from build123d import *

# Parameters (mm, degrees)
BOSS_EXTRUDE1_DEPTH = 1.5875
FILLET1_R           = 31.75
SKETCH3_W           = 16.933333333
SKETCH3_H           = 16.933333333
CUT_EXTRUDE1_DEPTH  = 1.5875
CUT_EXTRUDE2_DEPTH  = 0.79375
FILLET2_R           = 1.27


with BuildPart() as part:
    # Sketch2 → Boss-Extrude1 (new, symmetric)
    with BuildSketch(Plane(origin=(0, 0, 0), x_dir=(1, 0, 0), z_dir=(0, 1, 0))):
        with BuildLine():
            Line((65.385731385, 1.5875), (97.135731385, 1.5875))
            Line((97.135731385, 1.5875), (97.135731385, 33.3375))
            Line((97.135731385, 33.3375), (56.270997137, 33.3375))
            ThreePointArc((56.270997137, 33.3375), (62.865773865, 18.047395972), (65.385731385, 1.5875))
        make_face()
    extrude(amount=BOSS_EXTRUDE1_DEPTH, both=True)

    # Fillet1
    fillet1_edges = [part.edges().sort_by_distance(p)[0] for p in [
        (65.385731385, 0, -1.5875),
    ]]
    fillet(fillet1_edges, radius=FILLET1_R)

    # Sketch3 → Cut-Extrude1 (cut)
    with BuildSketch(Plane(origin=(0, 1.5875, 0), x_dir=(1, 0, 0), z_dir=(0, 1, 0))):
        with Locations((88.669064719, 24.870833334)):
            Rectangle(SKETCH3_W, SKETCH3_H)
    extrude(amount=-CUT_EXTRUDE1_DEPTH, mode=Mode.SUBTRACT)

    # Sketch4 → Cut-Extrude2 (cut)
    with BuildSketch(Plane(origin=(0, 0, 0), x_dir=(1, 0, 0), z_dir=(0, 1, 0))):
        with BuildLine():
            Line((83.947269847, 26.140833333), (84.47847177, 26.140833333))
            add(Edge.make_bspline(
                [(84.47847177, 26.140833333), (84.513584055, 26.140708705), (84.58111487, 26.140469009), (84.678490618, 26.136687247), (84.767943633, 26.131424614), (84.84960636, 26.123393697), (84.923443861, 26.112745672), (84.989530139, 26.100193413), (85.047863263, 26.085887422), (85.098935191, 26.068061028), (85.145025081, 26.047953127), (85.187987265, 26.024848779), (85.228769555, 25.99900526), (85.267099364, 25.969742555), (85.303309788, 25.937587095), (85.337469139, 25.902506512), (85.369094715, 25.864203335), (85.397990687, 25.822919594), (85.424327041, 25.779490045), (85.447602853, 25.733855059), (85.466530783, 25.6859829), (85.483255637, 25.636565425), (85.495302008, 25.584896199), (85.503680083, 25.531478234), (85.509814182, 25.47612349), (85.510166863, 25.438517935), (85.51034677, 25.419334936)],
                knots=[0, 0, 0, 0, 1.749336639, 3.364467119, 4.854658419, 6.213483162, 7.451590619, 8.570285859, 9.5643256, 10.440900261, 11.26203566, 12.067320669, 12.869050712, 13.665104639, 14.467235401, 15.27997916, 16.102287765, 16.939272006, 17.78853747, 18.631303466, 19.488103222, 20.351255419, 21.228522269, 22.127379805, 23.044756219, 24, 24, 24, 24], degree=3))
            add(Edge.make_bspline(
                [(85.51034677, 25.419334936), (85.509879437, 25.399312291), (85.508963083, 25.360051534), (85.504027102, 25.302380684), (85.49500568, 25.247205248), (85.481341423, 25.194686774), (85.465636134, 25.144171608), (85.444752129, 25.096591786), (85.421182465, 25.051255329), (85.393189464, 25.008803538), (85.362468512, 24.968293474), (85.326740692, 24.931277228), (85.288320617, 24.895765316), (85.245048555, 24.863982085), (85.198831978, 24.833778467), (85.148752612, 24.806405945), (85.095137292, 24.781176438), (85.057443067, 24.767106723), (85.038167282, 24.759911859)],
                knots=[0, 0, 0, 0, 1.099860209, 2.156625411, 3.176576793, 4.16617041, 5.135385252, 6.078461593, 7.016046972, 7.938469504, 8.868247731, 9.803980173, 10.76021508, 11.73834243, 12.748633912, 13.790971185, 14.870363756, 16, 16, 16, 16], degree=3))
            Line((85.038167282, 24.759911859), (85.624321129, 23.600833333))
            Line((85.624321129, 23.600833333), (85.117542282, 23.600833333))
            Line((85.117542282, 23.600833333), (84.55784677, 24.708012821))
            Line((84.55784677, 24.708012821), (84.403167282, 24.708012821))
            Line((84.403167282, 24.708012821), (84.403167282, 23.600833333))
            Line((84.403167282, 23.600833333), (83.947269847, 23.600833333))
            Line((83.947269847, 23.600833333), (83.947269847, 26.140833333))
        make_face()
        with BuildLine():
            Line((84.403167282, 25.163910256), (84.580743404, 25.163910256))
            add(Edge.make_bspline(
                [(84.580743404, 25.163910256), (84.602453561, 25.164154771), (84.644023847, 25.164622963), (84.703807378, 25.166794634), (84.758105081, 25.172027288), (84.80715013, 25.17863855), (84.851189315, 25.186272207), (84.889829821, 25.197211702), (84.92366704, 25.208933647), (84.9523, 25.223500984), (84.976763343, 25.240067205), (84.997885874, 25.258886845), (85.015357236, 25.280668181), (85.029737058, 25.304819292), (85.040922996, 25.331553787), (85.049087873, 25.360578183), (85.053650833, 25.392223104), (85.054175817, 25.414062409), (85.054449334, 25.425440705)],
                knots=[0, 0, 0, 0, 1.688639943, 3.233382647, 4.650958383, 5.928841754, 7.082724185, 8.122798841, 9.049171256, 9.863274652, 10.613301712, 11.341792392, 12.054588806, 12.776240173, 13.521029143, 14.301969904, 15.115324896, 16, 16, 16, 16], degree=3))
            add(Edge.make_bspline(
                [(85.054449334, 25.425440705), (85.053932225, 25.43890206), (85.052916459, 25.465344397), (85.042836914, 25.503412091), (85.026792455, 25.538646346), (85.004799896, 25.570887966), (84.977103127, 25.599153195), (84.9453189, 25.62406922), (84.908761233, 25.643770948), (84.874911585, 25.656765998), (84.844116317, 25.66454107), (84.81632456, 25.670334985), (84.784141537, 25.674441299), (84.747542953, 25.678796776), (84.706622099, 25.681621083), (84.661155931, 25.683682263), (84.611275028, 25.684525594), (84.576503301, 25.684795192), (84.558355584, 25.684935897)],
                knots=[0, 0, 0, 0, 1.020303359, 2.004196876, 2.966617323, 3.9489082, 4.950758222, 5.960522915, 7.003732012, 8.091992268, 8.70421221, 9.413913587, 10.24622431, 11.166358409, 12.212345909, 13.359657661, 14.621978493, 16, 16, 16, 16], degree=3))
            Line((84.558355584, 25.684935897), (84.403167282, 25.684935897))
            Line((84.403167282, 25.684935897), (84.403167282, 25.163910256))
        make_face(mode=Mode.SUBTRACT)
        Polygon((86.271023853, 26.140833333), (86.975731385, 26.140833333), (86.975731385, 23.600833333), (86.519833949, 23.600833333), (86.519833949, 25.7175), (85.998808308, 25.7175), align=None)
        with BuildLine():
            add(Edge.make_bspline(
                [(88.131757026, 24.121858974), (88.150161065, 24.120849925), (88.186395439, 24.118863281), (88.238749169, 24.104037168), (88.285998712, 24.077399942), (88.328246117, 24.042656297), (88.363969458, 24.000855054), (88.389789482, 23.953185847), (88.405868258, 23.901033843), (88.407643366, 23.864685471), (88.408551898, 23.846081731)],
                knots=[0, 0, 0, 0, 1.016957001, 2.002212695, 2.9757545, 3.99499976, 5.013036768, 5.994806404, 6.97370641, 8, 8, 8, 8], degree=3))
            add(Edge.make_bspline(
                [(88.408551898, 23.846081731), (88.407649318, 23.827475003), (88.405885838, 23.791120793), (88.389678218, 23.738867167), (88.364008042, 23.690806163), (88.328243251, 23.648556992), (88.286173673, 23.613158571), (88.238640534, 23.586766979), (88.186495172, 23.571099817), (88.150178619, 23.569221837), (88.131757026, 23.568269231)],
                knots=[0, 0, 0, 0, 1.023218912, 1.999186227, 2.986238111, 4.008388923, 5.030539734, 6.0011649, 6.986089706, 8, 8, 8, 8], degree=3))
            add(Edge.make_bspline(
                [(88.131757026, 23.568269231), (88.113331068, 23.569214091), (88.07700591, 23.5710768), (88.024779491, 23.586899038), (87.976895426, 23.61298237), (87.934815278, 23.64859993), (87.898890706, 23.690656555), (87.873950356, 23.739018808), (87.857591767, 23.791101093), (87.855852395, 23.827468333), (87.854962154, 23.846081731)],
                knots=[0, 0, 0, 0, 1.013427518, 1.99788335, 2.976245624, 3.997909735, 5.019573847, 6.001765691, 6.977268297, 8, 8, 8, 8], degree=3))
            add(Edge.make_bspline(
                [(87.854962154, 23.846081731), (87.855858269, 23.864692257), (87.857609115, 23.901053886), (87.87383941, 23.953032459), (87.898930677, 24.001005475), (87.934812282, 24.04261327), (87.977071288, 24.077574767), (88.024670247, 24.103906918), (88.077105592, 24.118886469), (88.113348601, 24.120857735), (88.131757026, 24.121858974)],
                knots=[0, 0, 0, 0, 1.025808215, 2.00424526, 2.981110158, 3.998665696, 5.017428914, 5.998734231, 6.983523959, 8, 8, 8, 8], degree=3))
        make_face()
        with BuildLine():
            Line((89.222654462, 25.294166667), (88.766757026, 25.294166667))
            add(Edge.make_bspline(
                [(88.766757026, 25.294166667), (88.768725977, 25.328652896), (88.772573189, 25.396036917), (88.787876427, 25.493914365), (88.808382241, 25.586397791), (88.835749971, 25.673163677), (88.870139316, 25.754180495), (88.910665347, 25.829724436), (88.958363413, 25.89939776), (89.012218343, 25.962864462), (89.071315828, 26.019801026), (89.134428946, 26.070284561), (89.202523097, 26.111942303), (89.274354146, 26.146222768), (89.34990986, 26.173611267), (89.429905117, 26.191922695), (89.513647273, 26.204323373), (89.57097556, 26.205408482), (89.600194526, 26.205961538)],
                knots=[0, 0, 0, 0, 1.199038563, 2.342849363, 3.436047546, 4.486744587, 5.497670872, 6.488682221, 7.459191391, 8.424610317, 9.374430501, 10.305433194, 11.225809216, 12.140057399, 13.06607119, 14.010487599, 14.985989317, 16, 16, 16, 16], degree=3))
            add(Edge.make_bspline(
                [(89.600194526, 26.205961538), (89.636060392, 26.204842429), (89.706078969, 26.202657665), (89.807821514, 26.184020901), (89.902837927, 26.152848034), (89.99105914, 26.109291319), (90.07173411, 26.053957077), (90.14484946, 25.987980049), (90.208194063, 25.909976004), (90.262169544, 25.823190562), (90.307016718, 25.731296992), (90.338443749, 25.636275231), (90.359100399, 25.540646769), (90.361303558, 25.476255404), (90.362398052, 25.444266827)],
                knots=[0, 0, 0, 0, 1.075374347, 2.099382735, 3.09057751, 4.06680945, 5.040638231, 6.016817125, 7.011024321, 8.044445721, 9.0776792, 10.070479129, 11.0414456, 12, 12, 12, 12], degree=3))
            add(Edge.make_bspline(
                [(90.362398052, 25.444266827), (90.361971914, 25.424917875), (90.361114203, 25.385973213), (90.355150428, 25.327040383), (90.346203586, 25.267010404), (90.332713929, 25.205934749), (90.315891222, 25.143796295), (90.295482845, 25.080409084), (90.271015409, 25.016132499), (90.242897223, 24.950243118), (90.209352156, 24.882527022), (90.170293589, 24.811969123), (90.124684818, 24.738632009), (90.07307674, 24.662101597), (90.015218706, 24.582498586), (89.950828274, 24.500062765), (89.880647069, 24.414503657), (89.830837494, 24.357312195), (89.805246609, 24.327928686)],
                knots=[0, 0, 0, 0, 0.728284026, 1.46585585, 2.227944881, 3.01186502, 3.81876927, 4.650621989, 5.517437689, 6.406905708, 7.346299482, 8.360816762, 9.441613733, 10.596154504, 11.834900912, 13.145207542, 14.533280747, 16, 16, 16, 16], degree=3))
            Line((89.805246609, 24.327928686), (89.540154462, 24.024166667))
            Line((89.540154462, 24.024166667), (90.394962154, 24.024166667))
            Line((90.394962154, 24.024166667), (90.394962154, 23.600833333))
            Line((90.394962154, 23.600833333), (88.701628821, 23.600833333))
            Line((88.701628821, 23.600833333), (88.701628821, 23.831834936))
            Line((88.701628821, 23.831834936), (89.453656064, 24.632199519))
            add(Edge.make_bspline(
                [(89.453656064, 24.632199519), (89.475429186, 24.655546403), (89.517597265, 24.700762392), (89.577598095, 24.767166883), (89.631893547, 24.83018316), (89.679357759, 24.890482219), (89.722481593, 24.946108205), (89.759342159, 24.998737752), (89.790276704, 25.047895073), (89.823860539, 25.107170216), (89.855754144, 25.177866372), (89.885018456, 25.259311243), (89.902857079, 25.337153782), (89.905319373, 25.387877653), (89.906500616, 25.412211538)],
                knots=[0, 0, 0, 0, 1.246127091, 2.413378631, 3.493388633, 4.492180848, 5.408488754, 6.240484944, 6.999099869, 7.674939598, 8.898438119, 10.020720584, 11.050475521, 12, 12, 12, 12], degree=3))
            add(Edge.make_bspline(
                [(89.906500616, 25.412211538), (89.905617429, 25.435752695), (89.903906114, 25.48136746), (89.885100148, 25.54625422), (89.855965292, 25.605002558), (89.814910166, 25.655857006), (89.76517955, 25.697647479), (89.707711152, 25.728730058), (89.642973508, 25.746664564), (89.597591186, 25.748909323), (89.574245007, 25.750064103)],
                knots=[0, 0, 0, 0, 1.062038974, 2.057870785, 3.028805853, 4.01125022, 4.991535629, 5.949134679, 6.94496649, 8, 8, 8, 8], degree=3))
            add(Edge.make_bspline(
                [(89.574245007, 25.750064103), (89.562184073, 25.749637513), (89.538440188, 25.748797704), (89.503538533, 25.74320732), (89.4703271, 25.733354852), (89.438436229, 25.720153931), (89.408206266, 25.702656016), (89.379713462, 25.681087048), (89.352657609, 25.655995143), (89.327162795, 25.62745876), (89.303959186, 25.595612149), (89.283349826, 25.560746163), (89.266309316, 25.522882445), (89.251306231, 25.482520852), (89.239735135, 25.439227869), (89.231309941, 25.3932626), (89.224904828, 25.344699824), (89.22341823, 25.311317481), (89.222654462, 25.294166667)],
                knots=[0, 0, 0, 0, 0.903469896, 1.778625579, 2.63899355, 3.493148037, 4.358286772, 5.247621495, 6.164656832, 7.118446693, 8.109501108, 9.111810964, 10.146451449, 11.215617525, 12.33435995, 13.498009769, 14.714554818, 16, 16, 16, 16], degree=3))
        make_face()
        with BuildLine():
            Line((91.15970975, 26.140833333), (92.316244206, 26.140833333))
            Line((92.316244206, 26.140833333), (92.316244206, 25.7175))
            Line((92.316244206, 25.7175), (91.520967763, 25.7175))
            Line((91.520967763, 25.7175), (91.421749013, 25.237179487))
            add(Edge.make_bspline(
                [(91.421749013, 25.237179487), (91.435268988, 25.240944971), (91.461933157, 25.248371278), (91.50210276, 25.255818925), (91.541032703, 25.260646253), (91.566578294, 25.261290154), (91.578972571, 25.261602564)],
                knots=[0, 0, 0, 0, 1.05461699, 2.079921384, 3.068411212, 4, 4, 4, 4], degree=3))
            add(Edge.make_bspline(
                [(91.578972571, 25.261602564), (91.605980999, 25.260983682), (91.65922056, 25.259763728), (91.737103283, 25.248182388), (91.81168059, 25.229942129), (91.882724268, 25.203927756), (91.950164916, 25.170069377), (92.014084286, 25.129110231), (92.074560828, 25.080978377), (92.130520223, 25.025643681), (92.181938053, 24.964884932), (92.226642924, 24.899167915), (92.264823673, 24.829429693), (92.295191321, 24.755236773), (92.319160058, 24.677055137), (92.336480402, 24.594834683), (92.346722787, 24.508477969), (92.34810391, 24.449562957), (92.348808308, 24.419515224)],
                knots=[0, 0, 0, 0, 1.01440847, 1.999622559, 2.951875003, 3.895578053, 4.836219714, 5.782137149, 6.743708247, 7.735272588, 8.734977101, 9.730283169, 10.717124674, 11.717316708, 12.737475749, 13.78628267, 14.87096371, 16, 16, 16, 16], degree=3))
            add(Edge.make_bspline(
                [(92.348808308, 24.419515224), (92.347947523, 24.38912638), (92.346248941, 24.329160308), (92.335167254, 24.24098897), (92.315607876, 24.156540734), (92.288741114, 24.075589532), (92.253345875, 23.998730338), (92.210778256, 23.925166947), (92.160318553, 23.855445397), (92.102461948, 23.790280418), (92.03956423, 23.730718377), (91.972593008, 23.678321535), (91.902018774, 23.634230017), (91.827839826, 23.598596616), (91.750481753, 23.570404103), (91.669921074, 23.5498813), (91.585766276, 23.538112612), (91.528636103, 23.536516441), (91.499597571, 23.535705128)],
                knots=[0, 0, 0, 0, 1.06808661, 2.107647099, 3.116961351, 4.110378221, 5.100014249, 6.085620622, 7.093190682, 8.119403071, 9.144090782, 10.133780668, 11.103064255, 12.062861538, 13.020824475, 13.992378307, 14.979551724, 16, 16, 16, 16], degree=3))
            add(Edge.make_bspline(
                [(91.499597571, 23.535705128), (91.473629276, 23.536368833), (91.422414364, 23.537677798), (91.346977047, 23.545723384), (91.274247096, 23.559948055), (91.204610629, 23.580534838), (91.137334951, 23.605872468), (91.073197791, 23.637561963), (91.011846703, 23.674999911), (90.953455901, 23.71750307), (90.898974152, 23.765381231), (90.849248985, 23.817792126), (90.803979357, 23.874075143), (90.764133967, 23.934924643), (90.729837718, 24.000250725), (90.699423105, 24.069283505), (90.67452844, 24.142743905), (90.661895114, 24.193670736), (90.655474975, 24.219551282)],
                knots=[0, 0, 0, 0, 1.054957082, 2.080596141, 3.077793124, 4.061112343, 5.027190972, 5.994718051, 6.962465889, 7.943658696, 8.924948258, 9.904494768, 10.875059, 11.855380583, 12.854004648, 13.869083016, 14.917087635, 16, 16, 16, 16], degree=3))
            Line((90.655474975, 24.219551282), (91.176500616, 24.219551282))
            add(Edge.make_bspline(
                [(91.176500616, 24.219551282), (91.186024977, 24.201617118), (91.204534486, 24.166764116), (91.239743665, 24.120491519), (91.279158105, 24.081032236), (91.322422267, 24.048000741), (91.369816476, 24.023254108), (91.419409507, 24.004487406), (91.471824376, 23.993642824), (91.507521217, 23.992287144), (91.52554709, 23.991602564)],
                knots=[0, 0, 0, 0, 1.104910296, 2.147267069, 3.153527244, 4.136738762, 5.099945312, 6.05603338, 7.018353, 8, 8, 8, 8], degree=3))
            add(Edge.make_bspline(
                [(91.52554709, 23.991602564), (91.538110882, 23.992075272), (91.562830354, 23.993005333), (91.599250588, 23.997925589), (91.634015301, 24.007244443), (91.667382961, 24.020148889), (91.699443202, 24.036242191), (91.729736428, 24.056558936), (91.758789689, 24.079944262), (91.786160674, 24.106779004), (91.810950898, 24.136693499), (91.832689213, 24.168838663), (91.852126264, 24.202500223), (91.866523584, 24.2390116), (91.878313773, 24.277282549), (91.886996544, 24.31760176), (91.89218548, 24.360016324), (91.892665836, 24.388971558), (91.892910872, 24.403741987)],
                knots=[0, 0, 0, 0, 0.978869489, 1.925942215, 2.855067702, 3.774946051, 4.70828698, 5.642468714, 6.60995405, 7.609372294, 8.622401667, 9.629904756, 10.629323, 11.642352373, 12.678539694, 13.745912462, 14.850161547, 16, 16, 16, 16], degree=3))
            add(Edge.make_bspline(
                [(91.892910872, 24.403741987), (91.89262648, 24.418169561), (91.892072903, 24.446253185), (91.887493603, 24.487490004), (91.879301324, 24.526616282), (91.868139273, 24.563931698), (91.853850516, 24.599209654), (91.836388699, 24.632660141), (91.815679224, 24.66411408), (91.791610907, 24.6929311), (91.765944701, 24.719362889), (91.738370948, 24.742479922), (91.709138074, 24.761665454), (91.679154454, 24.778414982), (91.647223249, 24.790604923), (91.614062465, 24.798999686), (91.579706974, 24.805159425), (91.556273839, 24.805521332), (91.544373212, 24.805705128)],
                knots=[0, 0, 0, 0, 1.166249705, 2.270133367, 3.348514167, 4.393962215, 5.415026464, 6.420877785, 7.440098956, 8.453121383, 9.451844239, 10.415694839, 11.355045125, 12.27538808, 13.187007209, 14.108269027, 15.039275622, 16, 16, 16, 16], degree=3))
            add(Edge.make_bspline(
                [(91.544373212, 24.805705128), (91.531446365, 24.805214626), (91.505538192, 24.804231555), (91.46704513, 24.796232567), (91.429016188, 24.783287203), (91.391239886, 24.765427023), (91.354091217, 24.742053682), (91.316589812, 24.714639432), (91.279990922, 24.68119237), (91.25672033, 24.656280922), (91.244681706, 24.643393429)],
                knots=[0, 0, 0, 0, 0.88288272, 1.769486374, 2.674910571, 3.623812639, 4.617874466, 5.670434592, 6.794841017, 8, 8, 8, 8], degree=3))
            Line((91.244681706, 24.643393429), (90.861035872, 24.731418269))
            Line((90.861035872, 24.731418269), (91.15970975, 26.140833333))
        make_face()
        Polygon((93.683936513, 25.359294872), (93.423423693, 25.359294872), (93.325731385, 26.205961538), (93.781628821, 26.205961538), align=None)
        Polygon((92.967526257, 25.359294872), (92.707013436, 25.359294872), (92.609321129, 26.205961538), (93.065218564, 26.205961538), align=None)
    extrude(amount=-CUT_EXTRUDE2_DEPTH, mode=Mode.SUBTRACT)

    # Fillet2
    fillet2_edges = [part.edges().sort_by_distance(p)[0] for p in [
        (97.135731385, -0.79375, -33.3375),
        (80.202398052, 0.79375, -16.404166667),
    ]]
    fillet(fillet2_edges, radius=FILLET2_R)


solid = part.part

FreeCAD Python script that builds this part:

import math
import FreeCAD as App
import Part
import Sketcher
Q = App.Units.Quantity


def edges_at(feature, points):
    """Names of the edges that pass closest to the given points."""
    edges = feature.Shape.Edges
    near = lambda p: min(range(len(edges)), key=lambda i: edges[i].distToShape(Part.Vertex(*p))[0])
    return sorted({f"Edge{near(p) + 1}" for p in points})

doc = App.newDocument("Part")
body = doc.addObject("PartDesign::Body", "Body")

sketch1 = body.newObject("Sketcher::SketchObject", "Sketch")
sketch1.AttachmentSupport = (doc.getObject("XZ_Plane"), [""])
sketch1.MapMode = "FlatFace"
sketch1.addGeometry([
    Part.LineSegment(App.Vector(65, -2, 0), App.Vector(97, -2, 0)),
    Part.LineSegment(App.Vector(97, -2, 0), App.Vector(97, -33, 0)),
    Part.LineSegment(App.Vector(97, -33, 0), App.Vector(56, -33, 0)),
    Part.ArcOfCircle(Part.Circle(App.Vector(0, 0, 0), App.Vector(0, 0, 1), 65), math.radians(-31), math.radians(-1)),
], False)
sketch1.addConstraint([
    Sketcher.Constraint("Coincident", 0, 2, 1, 1),
    Sketcher.Constraint("Coincident", 1, 2, 2, 1),
    Sketcher.Constraint("Coincident", 2, 2, 3, 1),
    Sketcher.Constraint("Coincident", 3, 2, 0, 1),
    Sketcher.Constraint("Horizontal", 0),
    Sketcher.Constraint("Vertical", 1),
    Sketcher.Constraint("Horizontal", 2),
    Sketcher.Constraint("Coincident", 3, 3, -1, 1),
    Sketcher.Constraint("Equal", 0, 1),
    Sketcher.Constraint("Radius", 3, Q("2.575 in")),
    Sketcher.Constraint("DistanceX", 0, 1, 0, 2, Q("1.25 in")),
    Sketcher.Constraint("DistanceY", 0, 2, -1, 1, Q("0.0625 in")),
])
pad1 = body.newObject("PartDesign::Pad", "Pad")
pad1.Profile = sketch1
pad1.Length = Q("0.125 in")
pad1.Midplane = True
doc.recompute()

fillet = body.newObject("PartDesign::Fillet", "Fillet")
fillet.Base = (pad1, edges_at(pad1, [(65.386, 0, -1.587)]))
fillet.Radius = Q("1.25 in")

sketch2 = body.newObject("Sketcher::SketchObject", "Sketch001")
sketch2.AttachmentSupport = (doc.getObject("XZ_Plane"), [""])
sketch2.MapMode = "FlatFace"
sketch2.AttachmentOffset = App.Placement(App.Vector(0, 0, -0.0625 * 25.4), App.Rotation())
sketch2.addGeometry([
    Part.LineSegment(App.Vector(80, -33, 0), App.Vector(80, -16, 0)),
    Part.LineSegment(App.Vector(80, -16, 0), App.Vector(97, -16, 0)),
    Part.LineSegment(App.Vector(97, -16, 0), App.Vector(97, -33, 0)),
    Part.LineSegment(App.Vector(97, -33, 0), App.Vector(80, -33, 0)),
], False)
sketch2.addConstraint([
    Sketcher.Constraint("Coincident", 0, 2, 1, 1),
    Sketcher.Constraint("Coincident", 1, 2, 2, 1),
    Sketcher.Constraint("Coincident", 2, 2, 3, 1),
    Sketcher.Constraint("Coincident", 3, 2, 0, 1),
    Sketcher.Constraint("Vertical", 0),
    Sketcher.Constraint("Horizontal", 1),
    Sketcher.Constraint("Vertical", 2),
    Sketcher.Constraint("Horizontal", 3),
    Sketcher.Constraint("Equal", 3, 0),
    Sketcher.Constraint("DistanceY", 2, 2, -1, 1, Q("1.3125 in")),
    Sketcher.Constraint("DistanceX", -1, 1, 0, 2, 80.202398),
    Sketcher.Constraint("DistanceX", 1, 1, 1, 2, 16.933333),
])
pocket1 = body.newObject("PartDesign::Pocket", "Pocket")
pocket1.Profile = sketch2
pocket1.Length = Q("0.0625 in")
pocket1.Reversed = True

sketch3 = body.newObject("Sketcher::SketchObject", "Sketch002")
sketch3.AttachmentSupport = (doc.getObject("XZ_Plane"), [""])
sketch3.MapMode = "FlatFace"
sketch3.addGeometry([
    Part.LineSegment(App.Vector(84.478472, -26.140833, 0), App.Vector(83.94727, -26.140833, 0)),
    Part.LineSegment(App.Vector(83.94727, -26.140833, 0), App.Vector(83.94727, -23.600833, 0)),
    Part.LineSegment(App.Vector(83.94727, -23.600833, 0), App.Vector(84.403167, -23.600833, 0)),
    Part.LineSegment(App.Vector(84.403167, -23.600833, 0), App.Vector(84.403167, -24.708013, 0)),
    Part.LineSegment(App.Vector(84.403167, -24.708013, 0), App.Vector(84.557847, -24.708013, 0)),
    Part.LineSegment(App.Vector(84.557847, -24.708013, 0), App.Vector(85.117542, -23.600833, 0)),
    Part.LineSegment(App.Vector(85.117542, -23.600833, 0), App.Vector(85.624321, -23.600833, 0)),
    Part.LineSegment(App.Vector(85.624321, -23.600833, 0), App.Vector(85.038167, -24.759912, 0)),
    Part.BSplineCurve([App.Vector(85.510347, -25.419335, 0), App.Vector(85.509879, -25.399312, 0), App.Vector(85.508963, -25.360052, 0), App.Vector(85.504027, -25.302381, 0), App.Vector(85.495006, -25.247205, 0), App.Vector(85.481341, -25.194687, 0), App.Vector(85.465636, -25.144172, 0), App.Vector(85.444752, -25.096592, 0), App.Vector(85.421182, -25.051255, 0), App.Vector(85.393189, -25.008804, 0), App.Vector(85.362469, -24.968293, 0), App.Vector(85.326741, -24.931277, 0), App.Vector(85.288321, -24.895765, 0), App.Vector(85.245049, -24.863982, 0), App.Vector(85.198832, -24.833778, 0), App.Vector(85.148753, -24.806406, 0), App.Vector(85.095137, -24.781176, 0), App.Vector(85.057443, -24.767107, 0), App.Vector(85.038167, -24.759912, 0)], [4, 1, 1, 1, 1, 1, 1, 1, 1, 1, 1, 1, 1, 1, 1, 1, 4], [0, 1.099860209, 2.156625411, 3.176576793, 4.16617041, 5.135385252, 6.078461593, 7.016046972, 7.938469504, 8.868247731, 9.803980173, 10.76021508, 11.73834243, 12.748633912, 13.790971185, 14.870363756, 16], False, 3, [1, 1, 1, 1, 1, 1, 1, 1, 1, 1, 1, 1, 1, 1, 1, 1, 1, 1, 1], False),
    Part.BSplineCurve([App.Vector(84.478472, -26.140833, 0), App.Vector(84.513584, -26.140709, 0), App.Vector(84.581115, -26.140469, 0), App.Vector(84.678491, -26.136687, 0), App.Vector(84.767944, -26.131425, 0), App.Vector(84.849606, -26.123394, 0), App.Vector(84.923444, -26.112746, 0), App.Vector(84.98953, -26.100193, 0), App.Vector(85.047863, -26.085887, 0), App.Vector(85.098935, -26.068061, 0), App.Vector(85.145025, -26.047953, 0), App.Vector(85.187987, -26.024849, 0), App.Vector(85.22877, -25.999005, 0), App.Vector(85.267099, -25.969743, 0), App.Vector(85.30331, -25.937587, 0), App.Vector(85.337469, -25.902507, 0), App.Vector(85.369095, -25.864203, 0), App.Vector(85.397991, -25.82292, 0), App.Vector(85.424327, -25.77949, 0), App.Vector(85.447603, -25.733855, 0), App.Vector(85.466531, -25.685983, 0), App.Vector(85.483256, -25.636565, 0), App.Vector(85.495302, -25.584896, 0), App.Vector(85.50368, -25.531478, 0), App.Vector(85.509814, -25.476123, 0), App.Vector(85.510167, -25.438518, 0), App.Vector(85.510347, -25.419335, 0)], [4, 1, 1, 1, 1, 1, 1, 1, 1, 1, 1, 1, 1, 1, 1, 1, 1, 1, 1, 1, 1, 1, 1, 1, 4], [0, 1.749336639, 3.364467119, 4.854658419, 6.213483162, 7.451590619, 8.570285859, 9.5643256, 10.440900261, 11.26203566, 12.067320669, 12.869050712, 13.665104639, 14.467235401, 15.27997916, 16.102287765, 16.939272006, 17.78853747, 18.631303466, 19.488103222, 20.351255419, 21.228522269, 22.127379805, 23.044756219, 24], False, 3, [1, 1, 1, 1, 1, 1, 1, 1, 1, 1, 1, 1, 1, 1, 1, 1, 1, 1, 1, 1, 1, 1, 1, 1, 1, 1, 1], False),
    Part.LineSegment(App.Vector(84.403167, -25.16391, 0), App.Vector(84.403167, -25.684936, 0)),
    Part.LineSegment(App.Vector(84.403167, -25.684936, 0), App.Vector(84.558356, -25.684936, 0)),
    Part.BSplineCurve([App.Vector(85.054449, -25.425441, 0), App.Vector(85.053932, -25.438902, 0), App.Vector(85.052916, -25.465344, 0), App.Vector(85.042837, -25.503412, 0), App.Vector(85.026792, -25.538646, 0), App.Vector(85.0048, -25.570888, 0), App.Vector(84.977103, -25.599153, 0), App.Vector(84.945319, -25.624069, 0), App.Vector(84.908761, -25.643771, 0), App.Vector(84.874912, -25.656766, 0), App.Vector(84.844116, -25.664541, 0), App.Vector(84.816325, -25.670335, 0), App.Vector(84.784142, -25.674441, 0), App.Vector(84.747543, -25.678797, 0), App.Vector(84.706622, -25.681621, 0), App.Vector(84.661156, -25.683682, 0), App.Vector(84.611275, -25.684526, 0), App.Vector(84.576503, -25.684795, 0), App.Vector(84.558356, -25.684936, 0)], [4, 1, 1, 1, 1, 1, 1, 1, 1, 1, 1, 1, 1, 1, 1, 1, 4], [0, 1.020303359, 2.004196876, 2.966617323, 3.9489082, 4.950758222, 5.960522915, 7.003732012, 8.091992268, 8.70421221, 9.413913587, 10.24622431, 11.166358409, 12.212345909, 13.359657661, 14.621978493, 16], False, 3, [1, 1, 1, 1, 1, 1, 1, 1, 1, 1, 1, 1, 1, 1, 1, 1, 1, 1, 1], False),
    Part.BSplineCurve([App.Vector(84.580743, -25.16391, 0), App.Vector(84.602454, -25.164155, 0), App.Vector(84.644024, -25.164623, 0), App.Vector(84.703807, -25.166795, 0), App.Vector(84.758105, -25.172027, 0), App.Vector(84.80715, -25.178639, 0), App.Vector(84.851189, -25.186272, 0), App.Vector(84.88983, -25.197212, 0), App.Vector(84.923667, -25.208934, 0), App.Vector(84.9523, -25.223501, 0), App.Vector(84.976763, -25.240067, 0), App.Vector(84.997886, -25.258887, 0), App.Vector(85.015357, -25.280668, 0), App.Vector(85.029737, -25.304819, 0), App.Vector(85.040923, -25.331554, 0), App.Vector(85.049088, -25.360578, 0), App.Vector(85.053651, -25.392223, 0), App.Vector(85.054176, -25.414062, 0), App.Vector(85.054449, -25.425441, 0)], [4, 1, 1, 1, 1, 1, 1, 1, 1, 1, 1, 1, 1, 1, 1, 1, 4], [0, 1.688639943, 3.233382647, 4.650958383, 5.928841754, 7.082724185, 8.122798841, 9.049171256, 9.863274652, 10.613301712, 11.341792392, 12.054588806, 12.776240173, 13.521029143, 14.301969904, 15.115324896, 16], False, 3, [1, 1, 1, 1, 1, 1, 1, 1, 1, 1, 1, 1, 1, 1, 1, 1, 1, 1, 1], False),
    Part.LineSegment(App.Vector(84.580743, -25.16391, 0), App.Vector(84.403167, -25.16391, 0)),
    Part.LineSegment(App.Vector(86.975731, -26.140833, 0), App.Vector(86.271024, -26.140833, 0)),
    Part.LineSegment(App.Vector(86.271024, -26.140833, 0), App.Vector(85.998808, -25.7175, 0)),
    Part.LineSegment(App.Vector(85.998808, -25.7175, 0), App.Vector(86.519834, -25.7175, 0)),
    Part.LineSegment(App.Vector(86.519834, -25.7175, 0), App.Vector(86.519834, -23.600833, 0)),
    Part.LineSegment(App.Vector(86.519834, -23.600833, 0), App.Vector(86.975731, -23.600833, 0)),
    Part.LineSegment(App.Vector(86.975731, -23.600833, 0), App.Vector(86.975731, -26.140833, 0)),
    Part.BSplineCurve([App.Vector(88.131757, -24.121859, 0), App.Vector(88.150161, -24.12085, 0), App.Vector(88.186395, -24.118863, 0), App.Vector(88.238749, -24.104037, 0), App.Vector(88.285999, -24.0774, 0), App.Vector(88.328246, -24.042656, 0), App.Vector(88.363969, -24.000855, 0), App.Vector(88.389789, -23.953186, 0), App.Vector(88.405868, -23.901034, 0), App.Vector(88.407643, -23.864685, 0), App.Vector(88.408552, -23.846082, 0)], [4, 1, 1, 1, 1, 1, 1, 1, 4], [0, 1.016957001, 2.002212695, 2.9757545, 3.99499976, 5.013036768, 5.994806404, 6.97370641, 8], False, 3, [1, 1, 1, 1, 1, 1, 1, 1, 1, 1, 1], False),
    Part.BSplineCurve([App.Vector(87.854962, -23.846082, 0), App.Vector(87.855858, -23.864692, 0), App.Vector(87.857609, -23.901054, 0), App.Vector(87.873839, -23.953032, 0), App.Vector(87.898931, -24.001005, 0), App.Vector(87.934812, -24.042613, 0), App.Vector(87.977071, -24.077575, 0), App.Vector(88.02467, -24.103907, 0), App.Vector(88.077106, -24.118886, 0), App.Vector(88.113349, -24.120858, 0), App.Vector(88.131757, -24.121859, 0)], [4, 1, 1, 1, 1, 1, 1, 1, 4], [0, 1.025808215, 2.00424526, 2.981110158, 3.998665696, 5.017428914, 5.998734231, 6.983523959, 8], False, 3, [1, 1, 1, 1, 1, 1, 1, 1, 1, 1, 1], False),
    Part.BSplineCurve([App.Vector(88.131757, -23.568269, 0), App.Vector(88.113331, -23.569214, 0), App.Vector(88.077006, -23.571077, 0), App.Vector(88.024779, -23.586899, 0), App.Vector(87.976895, -23.612982, 0), App.Vector(87.934815, -23.6486, 0), App.Vector(87.898891, -23.690657, 0), App.Vector(87.87395, -23.739019, 0), App.Vector(87.857592, -23.791101, 0), App.Vector(87.855852, -23.827468, 0), App.Vector(87.854962, -23.846082, 0)], [4, 1, 1, 1, 1, 1, 1, 1, 4], [0, 1.013427518, 1.99788335, 2.976245624, 3.997909735, 5.019573847, 6.001765691, 6.977268297, 8], False, 3, [1, 1, 1, 1, 1, 1, 1, 1, 1, 1, 1], False),
    Part.BSplineCurve([App.Vector(88.408552, -23.846082, 0), App.Vector(88.407649, -23.827475, 0), App.Vector(88.405886, -23.791121, 0), App.Vector(88.389678, -23.738867, 0), App.Vector(88.364008, -23.690806, 0), App.Vector(88.328243, -23.648557, 0), App.Vector(88.286174, -23.613159, 0), App.Vector(88.238641, -23.586767, 0), App.Vector(88.186495, -23.5711, 0), App.Vector(88.150179, -23.569222, 0), App.Vector(88.131757, -23.568269, 0)], [4, 1, 1, 1, 1, 1, 1, 1, 4], [0, 1.023218912, 1.999186227, 2.986238111, 4.008388923, 5.030539734, 6.0011649, 6.986089706, 8], False, 3, [1, 1, 1, 1, 1, 1, 1, 1, 1, 1, 1], False),
    Part.LineSegment(App.Vector(88.766757, -25.294167, 0), App.Vector(89.222654, -25.294167, 0)),
    Part.BSplineCurve([App.Vector(89.574245, -25.750064, 0), App.Vector(89.562184, -25.749638, 0), App.Vector(89.53844, -25.748798, 0), App.Vector(89.503539, -25.743207, 0), App.Vector(89.470327, -25.733355, 0), App.Vector(89.438436, -25.720154, 0), App.Vector(89.408206, -25.702656, 0), App.Vector(89.379713, -25.681087, 0), App.Vector(89.352658, -25.655995, 0), App.Vector(89.327163, -25.627459, 0), App.Vector(89.303959, -25.595612, 0), App.Vector(89.28335, -25.560746, 0), App.Vector(89.266309, -25.522882, 0), App.Vector(89.251306, -25.482521, 0), App.Vector(89.239735, -25.439228, 0), App.Vector(89.23131, -25.393263, 0), App.Vector(89.224905, -25.3447, 0), App.Vector(89.223418, -25.311317, 0), App.Vector(89.222654, -25.294167, 0)], [4, 1, 1, 1, 1, 1, 1, 1, 1, 1, 1, 1, 1, 1, 1, 1, 4], [0, 0.903469896, 1.778625579, 2.63899355, 3.493148037, 4.358286772, 5.247621495, 6.164656832, 7.118446693, 8.109501108, 9.111810964, 10.146451449, 11.215617525, 12.33435995, 13.498009769, 14.714554818, 16], False, 3, [1, 1, 1, 1, 1, 1, 1, 1, 1, 1, 1, 1, 1, 1, 1, 1, 1, 1, 1], False),
    Part.BSplineCurve([App.Vector(89.906501, -25.412212, 0), App.Vector(89.905617, -25.435753, 0), App.Vector(89.903906, -25.481367, 0), App.Vector(89.8851, -25.546254, 0), App.Vector(89.855965, -25.605003, 0), App.Vector(89.81491, -25.655857, 0), App.Vector(89.76518, -25.697647, 0), App.Vector(89.707711, -25.72873, 0), App.Vector(89.642974, -25.746665, 0), App.Vector(89.597591, -25.748909, 0), App.Vector(89.574245, -25.750064, 0)], [4, 1, 1, 1, 1, 1, 1, 1, 4], [0, 1.062038974, 2.057870785, 3.028805853, 4.01125022, 4.991535629, 5.949134679, 6.94496649, 8], False, 3, [1, 1, 1, 1, 1, 1, 1, 1, 1, 1, 1], False),
    Part.BSplineCurve([App.Vector(89.453656, -24.6322, 0), App.Vector(89.475429, -24.655546, 0), App.Vector(89.517597, -24.700762, 0), App.Vector(89.577598, -24.767167, 0), App.Vector(89.631894, -24.830183, 0), App.Vector(89.679358, -24.890482, 0), App.Vector(89.722482, -24.946108, 0), App.Vector(89.759342, -24.998738, 0), App.Vector(89.790277, -25.047895, 0), App.Vector(89.823861, -25.10717, 0), App.Vector(89.855754, -25.177866, 0), App.Vector(89.885018, -25.259311, 0), App.Vector(89.902857, -25.337154, 0), App.Vector(89.905319, -25.387878, 0), App.Vector(89.906501, -25.412212, 0)], [4, 1, 1, 1, 1, 1, 1, 1, 1, 1, 1, 1, 4], [0, 1.246127091, 2.413378631, 3.493388633, 4.492180848, 5.408488754, 6.240484944, 6.999099869, 7.674939598, 8.898438119, 10.020720584, 11.050475521, 12], False, 3, [1, 1, 1, 1, 1, 1, 1, 1, 1, 1, 1, 1, 1, 1, 1], False),
    Part.LineSegment(App.Vector(89.453656, -24.6322, 0), App.Vector(88.701629, -23.831835, 0)),
    Part.LineSegment(App.Vector(88.701629, -23.831835, 0), App.Vector(88.701629, -23.600833, 0)),
    Part.LineSegment(App.Vector(88.701629, -23.600833, 0), App.Vector(90.394962, -23.600833, 0)),
    Part.LineSegment(App.Vector(90.394962, -23.600833, 0), App.Vector(90.394962, -24.024167, 0)),
    Part.LineSegment(App.Vector(90.394962, -24.024167, 0), App.Vector(89.540154, -24.024167, 0)),
    Part.LineSegment(App.Vector(89.540154, -24.024167, 0), App.Vector(89.805247, -24.327929, 0)),
    Part.BSplineCurve([App.Vector(90.362398, -25.444267, 0), App.Vector(90.361972, -25.424918, 0), App.Vector(90.361114, -25.385973, 0), App.Vector(90.35515, -25.32704, 0), App.Vector(90.346204, -25.26701, 0), App.Vector(90.332714, -25.205935, 0), App.Vector(90.315891, -25.143796, 0), App.Vector(90.295483, -25.080409, 0), App.Vector(90.271015, -25.016132, 0), App.Vector(90.242897, -24.950243, 0), App.Vector(90.209352, -24.882527, 0), App.Vector(90.170294, -24.811969, 0), App.Vector(90.124685, -24.738632, 0), App.Vector(90.073077, -24.662102, 0), App.Vector(90.015219, -24.582499, 0), App.Vector(89.950828, -24.500063, 0), App.Vector(89.880647, -24.414504, 0), App.Vector(89.830837, -24.357312, 0), App.Vector(89.805247, -24.327929, 0)], [4, 1, 1, 1, 1, 1, 1, 1, 1, 1, 1, 1, 1, 1, 1, 1, 4], [0, 0.728284026, 1.46585585, 2.227944881, 3.01186502, 3.81876927, 4.650621989, 5.517437689, 6.406905708, 7.346299482, 8.360816762, 9.441613733, 10.596154504, 11.834900912, 13.145207542, 14.533280747, 16], False, 3, [1, 1, 1, 1, 1, 1, 1, 1, 1, 1, 1, 1, 1, 1, 1, 1, 1, 1, 1], False),
    Part.BSplineCurve([App.Vector(89.600195, -26.205962, 0), App.Vector(89.63606, -26.204842, 0), App.Vector(89.706079, -26.202658, 0), App.Vector(89.807822, -26.184021, 0), App.Vector(89.902838, -26.152848, 0), App.Vector(89.991059, -26.109291, 0), App.Vector(90.071734, -26.053957, 0), App.Vector(90.144849, -25.98798, 0), App.Vector(90.208194, -25.909976, 0), App.Vector(90.26217, -25.823191, 0), App.Vector(90.307017, -25.731297, 0), App.Vector(90.338444, -25.636275, 0), App.Vector(90.3591, -25.540647, 0), App.Vector(90.361304, -25.476255, 0), App.Vector(90.362398, -25.444267, 0)], [4, 1, 1, 1, 1, 1, 1, 1, 1, 1, 1, 1, 4], [0, 1.075374347, 2.099382735, 3.09057751, 4.06680945, 5.040638231, 6.016817125, 7.011024321, 8.044445721, 9.0776792, 10.070479129, 11.0414456, 12], False, 3, [1, 1, 1, 1, 1, 1, 1, 1, 1, 1, 1, 1, 1, 1, 1], False),
    Part.BSplineCurve([App.Vector(88.766757, -25.294167, 0), App.Vector(88.768726, -25.328653, 0), App.Vector(88.772573, -25.396037, 0), App.Vector(88.787876, -25.493914, 0), App.Vector(88.808382, -25.586398, 0), App.Vector(88.83575, -25.673164, 0), App.Vector(88.870139, -25.75418, 0), App.Vector(88.910665, -25.829724, 0), App.Vector(88.958363, -25.899398, 0), App.Vector(89.012218, -25.962864, 0), App.Vector(89.071316, -26.019801, 0), App.Vector(89.134429, -26.070285, 0), App.Vector(89.202523, -26.111942, 0), App.Vector(89.274354, -26.146223, 0), App.Vector(89.34991, -26.173611, 0), App.Vector(89.429905, -26.191923, 0), App.Vector(89.513647, -26.204323, 0), App.Vector(89.570976, -26.205408, 0), App.Vector(89.600195, -26.205962, 0)], [4, 1, 1, 1, 1, 1, 1, 1, 1, 1, 1, 1, 1, 1, 1, 1, 4], [0, 1.199038563, 2.342849363, 3.436047546, 4.486744587, 5.497670872, 6.488682221, 7.459191391, 8.424610317, 9.374430501, 10.305433194, 11.225809216, 12.140057399, 13.06607119, 14.010487599, 14.985989317, 16], False, 3, [1, 1, 1, 1, 1, 1, 1, 1, 1, 1, 1, 1, 1, 1, 1, 1, 1, 1, 1], False),
    Part.LineSegment(App.Vector(92.316244, -26.140833, 0), App.Vector(91.15971, -26.140833, 0)),
    Part.LineSegment(App.Vector(91.15971, -26.140833, 0), App.Vector(90.861036, -24.731418, 0)),
    Part.LineSegment(App.Vector(90.861036, -24.731418, 0), App.Vector(91.244682, -24.643393, 0)),
    Part.BSplineCurve([App.Vector(91.544373, -24.805705, 0), App.Vector(91.531446, -24.805215, 0), App.Vector(91.505538, -24.804232, 0), App.Vector(91.467045, -24.796233, 0), App.Vector(91.429016, -24.783287, 0), App.Vector(91.39124, -24.765427, 0), App.Vector(91.354091, -24.742054, 0), App.Vector(91.31659, -24.714639, 0), App.Vector(91.279991, -24.681192, 0), App.Vector(91.25672, -24.656281, 0), App.Vector(91.244682, -24.643393, 0)], [4, 1, 1, 1, 1, 1, 1, 1, 4], [0, 0.88288272, 1.769486374, 2.674910571, 3.623812639, 4.617874466, 5.670434592, 6.794841017, 8], False, 3, [1, 1, 1, 1, 1, 1, 1, 1, 1, 1, 1], False),
    Part.BSplineCurve([App.Vector(91.892911, -24.403742, 0), App.Vector(91.892626, -24.41817, 0), App.Vector(91.892073, -24.446253, 0), App.Vector(91.887494, -24.48749, 0), App.Vector(91.879301, -24.526616, 0), App.Vector(91.868139, -24.563932, 0), App.Vector(91.853851, -24.59921, 0), App.Vector(91.836389, -24.63266, 0), App.Vector(91.815679, -24.664114, 0), App.Vector(91.791611, -24.692931, 0), App.Vector(91.765945, -24.719363, 0), App.Vector(91.738371, -24.74248, 0), App.Vector(91.709138, -24.761665, 0), App.Vector(91.679154, -24.778415, 0), App.Vector(91.647223, -24.790605, 0), App.Vector(91.614062, -24.799, 0), App.Vector(91.579707, -24.805159, 0), App.Vector(91.556274, -24.805521, 0), App.Vector(91.544373, -24.805705, 0)], [4, 1, 1, 1, 1, 1, 1, 1, 1, 1, 1, 1, 1, 1, 1, 1, 4], [0, 1.166249705, 2.270133367, 3.348514167, 4.393962215, 5.415026464, 6.420877785, 7.440098956, 8.453121383, 9.451844239, 10.415694839, 11.355045125, 12.27538808, 13.187007209, 14.108269027, 15.039275622, 16], False, 3, [1, 1, 1, 1, 1, 1, 1, 1, 1, 1, 1, 1, 1, 1, 1, 1, 1, 1, 1], False),
    Part.BSplineCurve([App.Vector(91.525547, -23.991603, 0), App.Vector(91.538111, -23.992075, 0), App.Vector(91.56283, -23.993005, 0), App.Vector(91.599251, -23.997926, 0), App.Vector(91.634015, -24.007244, 0), App.Vector(91.667383, -24.020149, 0), App.Vector(91.699443, -24.036242, 0), App.Vector(91.729736, -24.056559, 0), App.Vector(91.75879, -24.079944, 0), App.Vector(91.786161, -24.106779, 0), App.Vector(91.810951, -24.136693, 0), App.Vector(91.832689, -24.168839, 0), App.Vector(91.852126, -24.2025, 0), App.Vector(91.866524, -24.239012, 0), App.Vector(91.878314, -24.277283, 0), App.Vector(91.886997, -24.317602, 0), App.Vector(91.892185, -24.360016, 0), App.Vector(91.892666, -24.388972, 0), App.Vector(91.892911, -24.403742, 0)], [4, 1, 1, 1, 1, 1, 1, 1, 1, 1, 1, 1, 1, 1, 1, 1, 4], [0, 0.978869489, 1.925942215, 2.855067702, 3.774946051, 4.70828698, 5.642468714, 6.60995405, 7.609372294, 8.622401667, 9.629904756, 10.629323, 11.642352373, 12.678539694, 13.745912462, 14.850161547, 16], False, 3, [1, 1, 1, 1, 1, 1, 1, 1, 1, 1, 1, 1, 1, 1, 1, 1, 1, 1, 1], False),
    Part.BSplineCurve([App.Vector(91.176501, -24.219551, 0), App.Vector(91.186025, -24.201617, 0), App.Vector(91.204534, -24.166764, 0), App.Vector(91.239744, -24.120492, 0), App.Vector(91.279158, -24.081032, 0), App.Vector(91.322422, -24.048001, 0), App.Vector(91.369816, -24.023254, 0), App.Vector(91.41941, -24.004487, 0), App.Vector(91.471824, -23.993643, 0), App.Vector(91.507521, -23.992287, 0), App.Vector(91.525547, -23.991603, 0)], [4, 1, 1, 1, 1, 1, 1, 1, 4], [0, 1.104910296, 2.147267069, 3.153527244, 4.136738762, 5.099945312, 6.05603338, 7.018353, 8], False, 3, [1, 1, 1, 1, 1, 1, 1, 1, 1, 1, 1], False),
    Part.LineSegment(App.Vector(91.176501, -24.219551, 0), App.Vector(90.655475, -24.219551, 0)),
    Part.BSplineCurve([App.Vector(91.499598, -23.535705, 0), App.Vector(91.473629, -23.536369, 0), App.Vector(91.422414, -23.537678, 0), App.Vector(91.346977, -23.545723, 0), App.Vector(91.274247, -23.559948, 0), App.Vector(91.204611, -23.580535, 0), App.Vector(91.137335, -23.605872, 0), App.Vector(91.073198, -23.637562, 0), App.Vector(91.011847, -23.675, 0), App.Vector(90.953456, -23.717503, 0), App.Vector(90.898974, -23.765381, 0), App.Vector(90.849249, -23.817792, 0), App.Vector(90.803979, -23.874075, 0), App.Vector(90.764134, -23.934925, 0), App.Vector(90.729838, -24.000251, 0), App.Vector(90.699423, -24.069284, 0), App.Vector(90.674528, -24.142744, 0), App.Vector(90.661895, -24.193671, 0), App.Vector(90.655475, -24.219551, 0)], [4, 1, 1, 1, 1, 1, 1, 1, 1, 1, 1, 1, 1, 1, 1, 1, 4], [0, 1.054957082, 2.080596141, 3.077793124, 4.061112343, 5.027190972, 5.994718051, 6.962465889, 7.943658696, 8.924948258, 9.904494768, 10.875059, 11.855380583, 12.854004648, 13.869083016, 14.917087635, 16], False, 3, [1, 1, 1, 1, 1, 1, 1, 1, 1, 1, 1, 1, 1, 1, 1, 1, 1, 1, 1], False),
    Part.BSplineCurve([App.Vector(92.348808, -24.419515, 0), App.Vector(92.347948, -24.389126, 0), App.Vector(92.346249, -24.32916, 0), App.Vector(92.335167, -24.240989, 0), App.Vector(92.315608, -24.156541, 0), App.Vector(92.288741, -24.07559, 0), App.Vector(92.253346, -23.99873, 0), App.Vector(92.210778, -23.925167, 0), App.Vector(92.160319, -23.855445, 0), App.Vector(92.102462, -23.79028, 0), App.Vector(92.039564, -23.730718, 0), App.Vector(91.972593, -23.678322, 0), App.Vector(91.902019, -23.63423, 0), App.Vector(91.82784, -23.598597, 0), App.Vector(91.750482, -23.570404, 0), App.Vector(91.669921, -23.549881, 0), App.Vector(91.585766, -23.538113, 0), App.Vector(91.528636, -23.536516, 0), App.Vector(91.499598, -23.535705, 0)], [4, 1, 1, 1, 1, 1, 1, 1, 1, 1, 1, 1, 1, 1, 1, 1, 4], [0, 1.06808661, 2.107647099, 3.116961351, 4.110378221, 5.100014249, 6.085620622, 7.093190682, 8.119403071, 9.144090782, 10.133780668, 11.103064255, 12.062861538, 13.020824475, 13.992378307, 14.979551724, 16], False, 3, [1, 1, 1, 1, 1, 1, 1, 1, 1, 1, 1, 1, 1, 1, 1, 1, 1, 1, 1], False),
    Part.BSplineCurve([App.Vector(91.578973, -25.261603, 0), App.Vector(91.605981, -25.260984, 0), App.Vector(91.659221, -25.259764, 0), App.Vector(91.737103, -25.248182, 0), App.Vector(91.811681, -25.229942, 0), App.Vector(91.882724, -25.203928, 0), App.Vector(91.950165, -25.170069, 0), App.Vector(92.014084, -25.12911, 0), App.Vector(92.074561, -25.080978, 0), App.Vector(92.13052, -25.025644, 0), App.Vector(92.181938, -24.964885, 0), App.Vector(92.226643, -24.899168, 0), App.Vector(92.264824, -24.82943, 0), App.Vector(92.295191, -24.755237, 0), App.Vector(92.31916, -24.677055, 0), App.Vector(92.33648, -24.594835, 0), App.Vector(92.346723, -24.508478, 0), App.Vector(92.348104, -24.449563, 0), App.Vector(92.348808, -24.419515, 0)], [4, 1, 1, 1, 1, 1, 1, 1, 1, 1, 1, 1, 1, 1, 1, 1, 4], [0, 1.01440847, 1.999622559, 2.951875003, 3.895578053, 4.836219714, 5.782137149, 6.743708247, 7.735272588, 8.734977101, 9.730283169, 10.717124674, 11.717316708, 12.737475749, 13.78628267, 14.87096371, 16], False, 3, [1, 1, 1, 1, 1, 1, 1, 1, 1, 1, 1, 1, 1, 1, 1, 1, 1, 1, 1], False),
    Part.BSplineCurve([App.Vector(91.421749, -25.237179, 0), App.Vector(91.435269, -25.240945, 0), App.Vector(91.461933, -25.248371, 0), App.Vector(91.502103, -25.255819, 0), App.Vector(91.541033, -25.260646, 0), App.Vector(91.566578, -25.26129, 0), App.Vector(91.578973, -25.261603, 0)], [4, 1, 1, 1, 4], [0, 1.05461699, 2.079921384, 3.068411212, 4], False, 3, [1, 1, 1, 1, 1, 1, 1], False),
    Part.LineSegment(App.Vector(91.421749, -25.237179, 0), App.Vector(91.520968, -25.7175, 0)),
    Part.LineSegment(App.Vector(91.520968, -25.7175, 0), App.Vector(92.316244, -25.7175, 0)),
    Part.LineSegment(App.Vector(92.316244, -25.7175, 0), App.Vector(92.316244, -26.140833, 0)),
    Part.LineSegment(App.Vector(93.423424, -25.359295, 0), App.Vector(93.683937, -25.359295, 0)),
    Part.LineSegment(App.Vector(93.683937, -25.359295, 0), App.Vector(93.781629, -26.205962, 0)),
    Part.LineSegment(App.Vector(93.781629, -26.205962, 0), App.Vector(93.325731, -26.205962, 0)),
    Part.LineSegment(App.Vector(93.325731, -26.205962, 0), App.Vector(93.423424, -25.359295, 0)),
    Part.LineSegment(App.Vector(92.707013, -25.359295, 0), App.Vector(92.967526, -25.359295, 0)),
    Part.LineSegment(App.Vector(92.967526, -25.359295, 0), App.Vector(93.065219, -26.205962, 0)),
    Part.LineSegment(App.Vector(93.065219, -26.205962, 0), App.Vector(92.609321, -26.205962, 0)),
    Part.LineSegment(App.Vector(92.609321, -26.205962, 0), App.Vector(92.707013, -25.359295, 0)),
], False)
sketch3.addConstraint([
    Sketcher.Constraint("Block", 8),
    Sketcher.Constraint("Block", 9),
    Sketcher.Constraint("Block", 12),
    Sketcher.Constraint("Block", 13),
    Sketcher.Constraint("Block", 21),
    Sketcher.Constraint("Block", 22),
    Sketcher.Constraint("Block", 23),
    Sketcher.Constraint("Block", 24),
    Sketcher.Constraint("Block", 26),
    Sketcher.Constraint("Block", 27),
    Sketcher.Constraint("Block", 28),
    Sketcher.Constraint("Block", 35),
    Sketcher.Constraint("Block", 36),
    Sketcher.Constraint("Block", 37),
    Sketcher.Constraint("Block", 41),
    Sketcher.Constraint("Block", 42),
    Sketcher.Constraint("Block", 43),
    Sketcher.Constraint("Block", 44),
    Sketcher.Constraint("Block", 46),
    Sketcher.Constraint("Block", 47),
    Sketcher.Constraint("Block", 48),
    Sketcher.Constraint("Block", 49),
    Sketcher.Constraint("Coincident", 0, 2, 1, 1),
    Sketcher.Constraint("Coincident", 1, 2, 2, 1),
    Sketcher.Constraint("Coincident", 2, 2, 3, 1),
    Sketcher.Constraint("Coincident", 3, 2, 4, 1),
    Sketcher.Constraint("Coincident", 4, 2, 5, 1),
    Sketcher.Constraint("Coincident", 5, 2, 6, 1),
    Sketcher.Constraint("Coincident", 6, 2, 7, 1),
    Sketcher.Constraint("Coincident", 7, 2, 8, 2),
    Sketcher.Constraint("Coincident", 9, 1, 0, 1),
    Sketcher.Constraint("Coincident", 10, 2, 11, 1),
    Sketcher.Constraint("Coincident", 11, 2, 12, 2),
    Sketcher.Constraint("Coincident", 13, 1, 14, 1),
    Sketcher.Constraint("Coincident", 14, 2, 10, 1),
    Sketcher.Constraint("Coincident", 15, 2, 16, 1),
    Sketcher.Constraint("Coincident", 16, 2, 17, 1),
    Sketcher.Constraint("Coincident", 17, 2, 18, 1),
    Sketcher.Constraint("Coincident", 18, 2, 19, 1),
    Sketcher.Constraint("Coincident", 19, 2, 20, 1),
    Sketcher.Constraint("Coincident", 20, 2, 15, 1),
    Sketcher.Constraint("Coincident", 25, 2, 26, 2),
    Sketcher.Constraint("Coincident", 28, 1, 29, 1),
    Sketcher.Constraint("Coincident", 29, 2, 30, 1),
    Sketcher.Constraint("Coincident", 30, 2, 31, 1),
    Sketcher.Constraint("Coincident", 31, 2, 32, 1),
    Sketcher.Constraint("Coincident", 32, 2, 33, 1),
    Sketcher.Constraint("Coincident", 33, 2, 34, 1),
    Sketcher.Constraint("Coincident", 34, 2, 35, 2),
    Sketcher.Constraint("Coincident", 37, 1, 25, 1),
    Sketcher.Constraint("Coincident", 38, 2, 39, 1),
    Sketcher.Constraint("Coincident", 39, 2, 40, 1),
    Sketcher.Constraint("Coincident", 40, 2, 41, 2),
    Sketcher.Constraint("Coincident", 44, 1, 45, 1),
    Sketcher.Constraint("Coincident", 45, 2, 46, 2),
    Sketcher.Constraint("Coincident", 49, 1, 50, 1),
    Sketcher.Constraint("Coincident", 50, 2, 51, 1),
    Sketcher.Constraint("Coincident", 51, 2, 52, 1),
    Sketcher.Constraint("Coincident", 52, 2, 38, 1),
    Sketcher.Constraint("Coincident", 53, 2, 54, 1),
    Sketcher.Constraint("Coincident", 54, 2, 55, 1),
    Sketcher.Constraint("Coincident", 55, 2, 56, 1),
    Sketcher.Constraint("Coincident", 56, 2, 53, 1),
    Sketcher.Constraint("Coincident", 57, 2, 58, 1),
    Sketcher.Constraint("Coincident", 58, 2, 59, 1),
    Sketcher.Constraint("Coincident", 59, 2, 60, 1),
    Sketcher.Constraint("Coincident", 60, 2, 57, 1),
    Sketcher.Constraint("Horizontal", 0),
    Sketcher.Constraint("Vertical", 1),
    Sketcher.Constraint("Horizontal", 2),
    Sketcher.Constraint("Vertical", 3),
    Sketcher.Constraint("Horizontal", 4),
    Sketcher.Constraint("Horizontal", 6),
    Sketcher.Constraint("Vertical", 10),
    Sketcher.Constraint("Horizontal", 11),
    Sketcher.Constraint("Horizontal", 14),
    Sketcher.Constraint("Horizontal", 15),
    Sketcher.Constraint("Horizontal", 17),
    Sketcher.Constraint("Vertical", 18),
    Sketcher.Constraint("Horizontal", 19),
    Sketcher.Constraint("Vertical", 20),
    Sketcher.Constraint("Vertical", 30),
    Sketcher.Constraint("Horizontal", 31),
    Sketcher.Constraint("Vertical", 32),
    Sketcher.Constraint("Horizontal", 33),
    Sketcher.Constraint("Horizontal", 38),
    Sketcher.Constraint("Horizontal", 51),
    Sketcher.Constraint("Vertical", 52),
    Sketcher.Constraint("Horizontal", 53),
    Sketcher.Constraint("Horizontal", 55),
    Sketcher.Constraint("Horizontal", 57),
    Sketcher.Constraint("Horizontal", 59),
    Sketcher.Constraint("DistanceY", 1, 1, 1, 2, Q("0.1 in")),
    Sketcher.Constraint("DistanceY", 20, 2, 20, 1, Q("0.1 in")),
    Sketcher.Constraint("DistanceY", 0, 2, 5, 2, Q("0.1 in")),
    Sketcher.Constraint("DistanceY", 38, 2, 31, 2, Q("0.1 in")),
    Sketcher.Constraint("DistanceY", 25, 2, 32, 2, Q("0.05 in")),
    Sketcher.Constraint("DistanceX", 3, 2, 7, 2, Q("0.025 in")),
    Sketcher.Constraint("DistanceX", 10, 2, 7, 2, Q("0.025 in")),
    Sketcher.Constraint("DistanceX", 0, 2, 0, 1, 0.531202),
    Sketcher.Constraint("DistanceY", 30, 1, 30, 2, 0.231002),
    Sketcher.Constraint("DistanceY", 16, 2, -1, 1, Q("1.0125 in")),
    Sketcher.Constraint("DistanceY", 50, 2, -1, 1, Q("1.0125 in")),
    Sketcher.Constraint("DistanceX", 25, 2, 33, 2, Q("0.0125 in")),
    Sketcher.Constraint("Distance", 16, 0.503302),
    Sketcher.Constraint("DistanceX", 4, 1, 4, 2, 0.154679),
    Sketcher.Constraint("DistanceX", 6, 1, 6, 2, 0.506779),
    Sketcher.Constraint("DistanceY", 3, 2, 3, 1, 1.107179),
    Sketcher.Constraint("DistanceY", 29, 2, 19, 2, 0.231002),
    Sketcher.Constraint("DistanceY", 53, 2, 40, 2, 0.715901),
    Sketcher.Constraint("Distance", 7, 1.298861),
    Sketcher.Constraint("Distance", 29, 1.098239),
    Sketcher.Constraint("Distance", 50, 0.490461),
    Sketcher.Constraint("DistanceX", 15, 2, 15, 1, 0.704708),
    Sketcher.Constraint("DistanceX", 17, 1, 17, 2, 0.521026),
    Sketcher.Constraint("DistanceX", 19, 1, 19, 2, 0.455897),
    Sketcher.Constraint("DistanceX", 31, 1, 31, 2, 1.693333),
    Sketcher.Constraint("DistanceX", 38, 2, 38, 1, 1.156534),
    Sketcher.Constraint("DistanceX", 51, 1, 51, 2, 0.795276),
    Sketcher.Constraint("DistanceX", 53, 1, 53, 2, 0.260513),
    Sketcher.Constraint("DistanceX", 55, 2, 55, 1, 0.455897),
    Sketcher.Constraint("DistanceX", 57, 1, 57, 2, 0.260513),
    Sketcher.Constraint("DistanceX", 59, 2, 59, 1, 0.455897),
    Sketcher.Constraint("DistanceX", -1, 1, 16, 2, 85.998808),
    Sketcher.Constraint("DistanceY", 39, 2, -1, 1, 24.731418),
    Sketcher.Constraint("DistanceX", -1, 1, 54, 2, 93.781629),
    Sketcher.Constraint("DistanceY", 54, 2, -1, 1, 26.205962),
    Sketcher.Constraint("DistanceX", -1, 1, 58, 2, 93.065219),
    Sketcher.Constraint("DistanceY", 58, 2, -1, 1, 26.205962),
    Sketcher.Constraint("DistanceX", 34, 2, 39, 2, 1.055789),
    Sketcher.Constraint("DistanceX", 50, 2, 53, 2, 2.162969),
    Sketcher.Constraint("DistanceX", 57, 2, 53, 2, 0.71641),
    Sketcher.Constraint("DistanceY", 52, 2, 57, 2, 0.781538),
])
pocket2 = body.newObject("PartDesign::Pocket", "Pocket001")
pocket2.Profile = sketch3
pocket2.Length = Q("0.03125 in")
pocket2.Reversed = True
doc.recompute()

fillet2 = body.newObject("PartDesign::Fillet", "Fillet001")
fillet2.Base = (pocket2, edges_at(pocket2, [(97.136, -0.794, -33.337), (80.202, 0.794, -16.404)]))
fillet2.Radius = Q("0.05 in")

doc.recompute()
